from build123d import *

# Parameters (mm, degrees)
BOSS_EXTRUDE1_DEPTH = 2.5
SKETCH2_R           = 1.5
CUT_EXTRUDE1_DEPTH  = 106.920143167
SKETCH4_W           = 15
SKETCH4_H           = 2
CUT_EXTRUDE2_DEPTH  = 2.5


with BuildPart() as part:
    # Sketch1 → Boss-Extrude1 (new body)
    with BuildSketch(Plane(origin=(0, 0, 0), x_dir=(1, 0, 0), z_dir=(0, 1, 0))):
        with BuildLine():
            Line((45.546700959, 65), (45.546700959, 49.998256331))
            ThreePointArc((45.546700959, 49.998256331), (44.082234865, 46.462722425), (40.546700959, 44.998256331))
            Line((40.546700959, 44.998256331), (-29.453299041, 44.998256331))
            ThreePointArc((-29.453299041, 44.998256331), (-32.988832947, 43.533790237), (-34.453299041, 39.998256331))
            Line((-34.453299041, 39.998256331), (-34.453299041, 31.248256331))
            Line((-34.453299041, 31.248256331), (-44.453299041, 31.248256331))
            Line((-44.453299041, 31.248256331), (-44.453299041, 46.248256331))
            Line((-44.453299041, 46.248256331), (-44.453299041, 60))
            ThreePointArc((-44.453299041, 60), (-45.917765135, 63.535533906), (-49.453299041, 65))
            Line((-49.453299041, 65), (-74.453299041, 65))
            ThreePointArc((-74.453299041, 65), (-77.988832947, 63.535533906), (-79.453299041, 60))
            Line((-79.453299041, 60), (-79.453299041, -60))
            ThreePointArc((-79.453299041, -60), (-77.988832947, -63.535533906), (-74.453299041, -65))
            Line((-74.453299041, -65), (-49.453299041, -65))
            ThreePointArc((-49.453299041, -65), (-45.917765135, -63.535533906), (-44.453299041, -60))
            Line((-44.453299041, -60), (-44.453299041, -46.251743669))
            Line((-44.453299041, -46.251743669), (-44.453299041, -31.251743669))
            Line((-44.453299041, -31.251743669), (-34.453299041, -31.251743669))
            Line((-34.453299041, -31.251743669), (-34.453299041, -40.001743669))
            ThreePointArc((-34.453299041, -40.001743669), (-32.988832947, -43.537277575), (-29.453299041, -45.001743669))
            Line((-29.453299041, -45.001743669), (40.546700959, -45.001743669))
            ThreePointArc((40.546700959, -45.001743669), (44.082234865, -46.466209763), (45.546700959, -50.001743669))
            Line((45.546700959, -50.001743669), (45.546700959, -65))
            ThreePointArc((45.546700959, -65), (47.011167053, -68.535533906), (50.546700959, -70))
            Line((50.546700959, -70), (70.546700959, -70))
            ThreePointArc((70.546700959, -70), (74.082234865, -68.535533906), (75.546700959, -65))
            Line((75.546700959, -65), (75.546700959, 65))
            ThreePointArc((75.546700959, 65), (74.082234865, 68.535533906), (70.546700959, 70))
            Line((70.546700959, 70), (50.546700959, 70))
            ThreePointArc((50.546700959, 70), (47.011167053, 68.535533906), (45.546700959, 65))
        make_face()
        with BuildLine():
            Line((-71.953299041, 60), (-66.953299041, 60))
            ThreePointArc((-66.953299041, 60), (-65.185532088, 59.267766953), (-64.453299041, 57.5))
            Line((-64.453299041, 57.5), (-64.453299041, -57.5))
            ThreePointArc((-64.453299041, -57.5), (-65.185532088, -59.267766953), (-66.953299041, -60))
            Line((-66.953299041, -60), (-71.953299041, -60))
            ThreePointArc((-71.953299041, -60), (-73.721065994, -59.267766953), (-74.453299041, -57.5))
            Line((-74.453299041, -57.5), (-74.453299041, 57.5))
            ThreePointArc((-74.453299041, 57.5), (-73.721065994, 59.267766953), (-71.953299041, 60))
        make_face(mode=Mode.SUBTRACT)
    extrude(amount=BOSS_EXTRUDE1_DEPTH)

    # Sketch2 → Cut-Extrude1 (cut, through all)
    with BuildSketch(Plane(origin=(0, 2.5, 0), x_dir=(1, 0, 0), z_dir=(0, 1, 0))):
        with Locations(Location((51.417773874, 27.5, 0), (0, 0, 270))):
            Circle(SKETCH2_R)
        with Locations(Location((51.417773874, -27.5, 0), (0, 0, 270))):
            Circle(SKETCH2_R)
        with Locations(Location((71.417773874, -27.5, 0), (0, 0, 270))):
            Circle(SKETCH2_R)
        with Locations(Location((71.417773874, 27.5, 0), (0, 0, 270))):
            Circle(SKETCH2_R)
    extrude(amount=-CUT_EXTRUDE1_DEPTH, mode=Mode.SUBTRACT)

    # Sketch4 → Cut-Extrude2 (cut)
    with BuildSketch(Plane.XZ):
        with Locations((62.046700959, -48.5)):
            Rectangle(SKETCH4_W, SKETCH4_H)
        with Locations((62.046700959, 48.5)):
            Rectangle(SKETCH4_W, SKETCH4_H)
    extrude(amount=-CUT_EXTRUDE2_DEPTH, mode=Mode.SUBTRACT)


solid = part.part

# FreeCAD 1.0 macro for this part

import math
import FreeCAD as App
import Part
import Sketcher

doc = App.newDocument("Part")
body = doc.addObject("PartDesign::Body", "Body")

# Sketch on XZ plane
sketch1 = body.newObject("Sketcher::SketchObject", "Sketch")
sketch1.AttachmentSupport = (doc.getObject("XZ_Plane"), [""])
sketch1.MapMode = "FlatFace"
sketch1.addGeometry(Part.LineSegment(App.Vector(45.5, -65, 0), App.Vector(45.5, -50, 0)), False)
sketch1.addGeometry(Part.ArcOfCircle(Part.Circle(App.Vector(40.5, -50, 0), App.Vector(0, 0, 1), 5), math.radians(0), math.radians(90)), False)
sketch1.addGeometry(Part.LineSegment(App.Vector(40.5, -45, 0), App.Vector(-29.5, -45, 0)), False)
sketch1.addGeometry(Part.ArcOfCircle(Part.Circle(App.Vector(-29.5, -40, 0), App.Vector(0, 0, 1), 5), math.radians(180), math.radians(270)), False)
sketch1.addGeometry(Part.LineSegment(App.Vector(-34.5, -40, 0), App.Vector(-34.5, -31.2, 0)), False)
sketch1.addGeometry(Part.LineSegment(App.Vector(-34.5, -31.2, 0), App.Vector(-44.5, -31.2, 0)), False)
sketch1.addGeometry(Part.LineSegment(App.Vector(-44.5, -31.2, 0), App.Vector(-44.5, -60, 0)), False)
sketch1.addGeometry(Part.ArcOfCircle(Part.Circle(App.Vector(-49.5, -60, 0), App.Vector(0, 0, 1), 5), math.radians(-90), math.radians(0)), False)
sketch1.addGeometry(Part.LineSegment(App.Vector(-49.5, -65, 0), App.Vector(-74.5, -65, 0)), False)
sketch1.addGeometry(Part.ArcOfCircle(Part.Circle(App.Vector(-74.5, -60, 0), App.Vector(0, 0, 1), 5), math.radians(180), math.radians(270)), False)
sketch1.addGeometry(Part.LineSegment(App.Vector(-79.5, -60, 0), App.Vector(-79.5, 60, 0)), False)
sketch1.addGeometry(Part.ArcOfCircle(Part.Circle(App.Vector(-74.5, 60, 0), App.Vector(0, 0, 1), 5), math.radians(90), math.radians(180)), False)
sketch1.addGeometry(Part.LineSegment(App.Vector(-74.5, 65, 0), App.Vector(-49.5, 65, 0)), False)
sketch1.addGeometry(Part.ArcOfCircle(Part.Circle(App.Vector(-49.5, 60, 0), App.Vector(0, 0, 1), 5), math.radians(0), math.radians(90)), False)
sketch1.addGeometry(Part.LineSegment(App.Vector(-44.5, 60, 0), App.Vector(-44.5, 31.3, 0)), False)
sketch1.addGeometry(Part.LineSegment(App.Vector(-44.5, 31.3, 0), App.Vector(-34.5, 31.3, 0)), False)
sketch1.addGeometry(Part.LineSegment(App.Vector(-34.5, 31.3, 0), App.Vector(-34.5, 40, 0)), False)
sketch1.addGeometry(Part.ArcOfCircle(Part.Circle(App.Vector(-29.5, 40, 0), App.Vector(0, 0, 1), 5), math.radians(90), math.radians(180)), False)
sketch1.addGeometry(Part.LineSegment(App.Vector(-29.5, 45, 0), App.Vector(40.5, 45, 0)), False)
sketch1.addGeometry(Part.ArcOfCircle(Part.Circle(App.Vector(40.5, 50, 0), App.Vector(0, 0, 1), 5), math.radians(-90), math.radians(0)), False)
sketch1.addGeometry(Part.LineSegment(App.Vector(45.5, 50, 0), App.Vector(45.5, 65, 0)), False)
sketch1.addGeometry(Part.ArcOfCircle(Part.Circle(App.Vector(50.5, 65, 0), App.Vector(0, 0, 1), 5), math.radians(90), math.radians(180)), False)
sketch1.addGeometry(Part.LineSegment(App.Vector(50.5, 70, 0), App.Vector(70.5, 70, 0)), False)
sketch1.addGeometry(Part.ArcOfCircle(Part.Circle(App.Vector(70.5, 65, 0), App.Vector(0, 0, 1), 5), math.radians(0), math.radians(90)), False)
sketch1.addGeometry(Part.LineSegment(App.Vector(75.5, 65, 0), App.Vector(75.5, -65, 0)), False)
sketch1.addGeometry(Part.ArcOfCircle(Part.Circle(App.Vector(70.5, -65, 0), App.Vector(0, 0, 1), 5), math.radians(-90), math.radians(0)), False)
sketch1.addGeometry(Part.LineSegment(App.Vector(70.5, -70, 0), App.Vector(50.5, -70, 0)), False)
sketch1.addGeometry(Part.ArcOfCircle(Part.Circle(App.Vector(50.5, -65, 0), App.Vector(0, 0, 1), 5), math.radians(180), math.radians(270)), False)
sketch1.addGeometry(Part.ArcOfCircle(Part.Circle(App.Vector(-72, -57.5, 0), App.Vector(0, 0, 1), 2.5), math.radians(180), math.radians(270)), False)
sketch1.addGeometry(Part.LineSegment(App.Vector(-72, -60, 0), App.Vector(-67, -60, 0)), False)
sketch1.addGeometry(Part.ArcOfCircle(Part.Circle(App.Vector(-67, -57.5, 0), App.Vector(0, 0, 1), 2.5), math.radians(-90), math.radians(0)), False)
sketch1.addGeometry(Part.LineSegment(App.Vector(-64.5, -57.5, 0), App.Vector(-64.5, 57.5, 0)), False)
sketch1.addGeometry(Part.ArcOfCircle(Part.Circle(App.Vector(-67, 57.5, 0), App.Vector(0, 0, 1), 2.5), math.radians(0), math.radians(90)), False)
sketch1.addGeometry(Part.LineSegment(App.Vector(-67, 60, 0), App.Vector(-72, 60, 0)), False)
sketch1.addGeometry(Part.ArcOfCircle(Part.Circle(App.Vector(-72, 57.5, 0), App.Vector(0, 0, 1), 2.5), math.radians(90), math.radians(180)), False)
sketch1.addGeometry(Part.LineSegment(App.Vector(-74.5, 57.5, 0), App.Vector(-74.5, -57.5, 0)), False)
sketch1.addConstraint(Sketcher.Constraint("Tangent", 0, 2, 1, 1))
sketch1.addConstraint(Sketcher.Constraint("Tangent", 1, 2, 2, 1))
sketch1.addConstraint(Sketcher.Constraint("Tangent", 2, 2, 3, 2))
sketch1.addConstraint(Sketcher.Constraint("Tangent", 3, 1, 4, 1))
sketch1.addConstraint(Sketcher.Constraint("Coincident", 4, 2, 5, 1))
sketch1.addConstraint(Sketcher.Constraint("Coincident", 5, 2, 6, 1))
sketch1.addConstraint(Sketcher.Constraint("Tangent", 6, 2, 7, 2))
sketch1.addConstraint(Sketcher.Constraint("Tangent", 7, 1, 8, 1))
sketch1.addConstraint(Sketcher.Constraint("Tangent", 8, 2, 9, 2))
sketch1.addConstraint(Sketcher.Constraint("Tangent", 9, 1, 10, 1))
sketch1.addConstraint(Sketcher.Constraint("Tangent", 10, 2, 11, 2))
sketch1.addConstraint(Sketcher.Constraint("Tangent", 11, 1, 12, 1))
sketch1.addConstraint(Sketcher.Constraint("Tangent", 12, 2, 13, 2))
sketch1.addConstraint(Sketcher.Constraint("Tangent", 13, 1, 14, 1))
sketch1.addConstraint(Sketcher.Constraint("Coincident", 14, 2, 15, 1))
sketch1.addConstraint(Sketcher.Constraint("Coincident", 15, 2, 16, 1))
sketch1.addConstraint(Sketcher.Constraint("Tangent", 16, 2, 17, 2))
sketch1.addConstraint(Sketcher.Constraint("Tangent", 17, 1, 18, 1))
sketch1.addConstraint(Sketcher.Constraint("Tangent", 18, 2, 19, 1))
sketch1.addConstraint(Sketcher.Constraint("Tangent", 19, 2, 20, 1))
sketch1.addConstraint(Sketcher.Constraint("Tangent", 20, 2, 21, 2))
sketch1.addConstraint(Sketcher.Constraint("Tangent", 21, 1, 22, 1))
sketch1.addConstraint(Sketcher.Constraint("Tangent", 22, 2, 23, 2))
sketch1.addConstraint(Sketcher.Constraint("Tangent", 23, 1, 24, 1))
sketch1.addConstraint(Sketcher.Constraint("Tangent", 24, 2, 25, 2))
sketch1.addConstraint(Sketcher.Constraint("Tangent", 25, 1, 26, 1))
sketch1.addConstraint(Sketcher.Constraint("Tangent", 26, 2, 27, 2))
sketch1.addConstraint(Sketcher.Constraint("Tangent", 27, 1, 0, 1))
sketch1.addConstraint(Sketcher.Constraint("Tangent", 28, 2, 29, 1))
sketch1.addConstraint(Sketcher.Constraint("Tangent", 29, 2, 30, 1))
sketch1.addConstraint(Sketcher.Constraint("Tangent", 30, 2, 31, 1))
sketch1.addConstraint(Sketcher.Constraint("Tangent", 31, 2, 32, 1))
sketch1.addConstraint(Sketcher.Constraint("Tangent", 32, 2, 33, 1))
sketch1.addConstraint(Sketcher.Constraint("Tangent", 33, 2, 34, 1))
sketch1.addConstraint(Sketcher.Constraint("Tangent", 34, 2, 35, 1))
sketch1.addConstraint(Sketcher.Constraint("Tangent", 35, 2, 28, 1))
sketch1.addConstraint(Sketcher.Constraint("Vertical", 0))
sketch1.addConstraint(Sketcher.Constraint("Horizontal", 2))
sketch1.addConstraint(Sketcher.Constraint("Vertical", 4))
sketch1.addConstraint(Sketcher.Constraint("Horizontal", 5))
sketch1.addConstraint(Sketcher.Constraint("Vertical", 6))
sketch1.addConstraint(Sketcher.Constraint("Horizontal", 8))
sketch1.addConstraint(Sketcher.Constraint("Vertical", 10))
sketch1.addConstraint(Sketcher.Constraint("Horizontal", 12))
sketch1.addConstraint(Sketcher.Constraint("Vertical", 14))
sketch1.addConstraint(Sketcher.Constraint("Horizontal", 15))
sketch1.addConstraint(Sketcher.Constraint("Vertical", 16))
sketch1.addConstraint(Sketcher.Constraint("Horizontal", 18))
sketch1.addConstraint(Sketcher.Constraint("Vertical", 20))
sketch1.addConstraint(Sketcher.Constraint("Horizontal", 22))
sketch1.addConstraint(Sketcher.Constraint("Vertical", 24))
sketch1.addConstraint(Sketcher.Constraint("Horizontal", 26))
sketch1.addConstraint(Sketcher.Constraint("Horizontal", 29))
sketch1.addConstraint(Sketcher.Constraint("Vertical", 31))
sketch1.addConstraint(Sketcher.Constraint("Horizontal", 33))
sketch1.addConstraint(Sketcher.Constraint("Vertical", 35))
sketch1.addConstraint(Sketcher.Constraint("Equal", 1, 3))
sketch1.addConstraint(Sketcher.Constraint("Equal", 3, 7))
sketch1.addConstraint(Sketcher.Constraint("Equal", 7, 9))
sketch1.addConstraint(Sketcher.Constraint("Equal", 9, 11))
sketch1.addConstraint(Sketcher.Constraint("Equal", 11, 13))
sketch1.addConstraint(Sketcher.Constraint("Equal", 13, 17))
sketch1.addConstraint(Sketcher.Constraint("Equal", 17, 19))
sketch1.addConstraint(Sketcher.Constraint("Equal", 19, 21))
sketch1.addConstraint(Sketcher.Constraint("Equal", 21, 23))
sketch1.addConstraint(Sketcher.Constraint("Equal", 23, 25))
sketch1.addConstraint(Sketcher.Constraint("Equal", 25, 27))
sketch1.addConstraint(Sketcher.Constraint("Equal", 28, 30))
sketch1.addConstraint(Sketcher.Constraint("Equal", 30, 32))
sketch1.addConstraint(Sketcher.Constraint("Equal", 32, 34))
sketch1.addConstraint(Sketcher.Constraint("Symmetric", 7, 3, 13, 3, -1))
sketch1.addConstraint(Sketcher.Constraint("Symmetric", 21, 3, 27, 3, -1))
sketch1.addConstraint(Sketcher.Constraint("Horizontal", 27, 3, 7, 1))
sketch1.addConstraint(Sketcher.Constraint("Horizontal", 9, 1, 28, 2))
sketch1.addConstraint(Sketcher.Constraint("Horizontal", 13, 1, 32, 2))
sketch1.addConstraint(Sketcher.Constraint("Vertical", 3, 3, 17, 3))
sketch1.addConstraint(Sketcher.Constraint("Vertical", 11, 1, 34, 2))
sketch1.addConstraint(Sketcher.Constraint("Equal", 4, 16))
sketch1.addConstraint(Sketcher.Constraint("Radius", 1, 5.0))
sketch1.addConstraint(Sketcher.Constraint("Radius", 28, 2.5))
sketch1.addConstraint(Sketcher.Constraint("DistanceX", 2, 2, 2, 1, 70.0))
sketch1.addConstraint(Sketcher.Constraint("DistanceX", 5, 2, 5, 1, 10.0))
sketch1.addConstraint(Sketcher.Constraint("DistanceX", 8, 2, 8, 1, 25.0))
sketch1.addConstraint(Sketcher.Constraint("DistanceX", 22, 1, 22, 2, 20.0))
sketch1.addConstraint(Sketcher.Constraint("DistanceX", 29, 1, 29, 2, 5.0))
sketch1.addConstraint(Sketcher.Constraint("DistanceY", 10, 1, 10, 2, 120.0))
sketch1.addConstraint(Sketcher.Constraint("DistanceY", 3, 3, 17, 3, 80.0))
sketch1.addConstraint(Sketcher.Constraint("DistanceY", 4, 1, 4, 2, 8.75))
sketch1.addConstraint(Sketcher.Constraint("DistanceX", -1, 1, 1, 3, 40.546701))
sketch1.addConstraint(Sketcher.Constraint("DistanceY", 0, 1, 0, 2, 15.001744))
pad1 = body.newObject("PartDesign::Pad", "Pad")
pad1.Profile = sketch1
pad1.Length = 2.5
pad1.Reversed = True

# Sketch on XZ plane
sketch2 = body.newObject("Sketcher::SketchObject", "Sketch001")
sketch2.AttachmentSupport = (doc.getObject("XZ_Plane"), [""])
sketch2.MapMode = "FlatFace"
sketch2.AttachmentOffset = App.Placement(App.Vector(0, 0, -2.5), App.Rotation())
sketch2.addGeometry(Part.Circle(App.Vector(51.4, -27.5, 0), App.Vector(0, 0, 1), 1.5), False)
sketch2.addGeometry(Part.Circle(App.Vector(51.4, 27.5, 0), App.Vector(0, 0, 1), 1.5), False)
sketch2.addGeometry(Part.Circle(App.Vector(71.4, 27.5, 0), App.Vector(0, 0, 1), 1.5), False)
sketch2.addGeometry(Part.Circle(App.Vector(71.4, -27.5, 0), App.Vector(0, 0, 1), 1.5), False)
sketch2.addConstraint(Sketcher.Constraint("Equal", 0, 1))
sketch2.addConstraint(Sketcher.Constraint("Equal", 1, 2))
sketch2.addConstraint(Sketcher.Constraint("Equal", 2, 3))
sketch2.addConstraint(Sketcher.Constraint("Symmetric", 0, 3, 1, 3, -1))
sketch2.addConstraint(Sketcher.Constraint("Symmetric", 2, 3, 3, 3, -1))
sketch2.addConstraint(Sketcher.Constraint("Horizontal", 1, 3, 2, 3))
sketch2.addConstraint(Sketcher.Constraint("Diameter", 0, 3.0))
sketch2.addConstraint(Sketcher.Constraint("DistanceY", 0, 3, 1, 3, 55.0))
sketch2.addConstraint(Sketcher.Constraint("DistanceX", 1, 3, 2, 3, 20.0))
sketch2.addConstraint(Sketcher.Constraint("DistanceX", -1, 1, 0, 3, 51.417774))
pocket1 = body.newObject("PartDesign::Pocket", "Pocket")
pocket1.Profile = sketch2
pocket1.Type = "ThroughAll"
pocket1.Reversed = True

# Sketch on XZ plane
sketch3 = body.newObject("Sketcher::SketchObject", "Sketch002")
sketch3.AttachmentSupport = (doc.getObject("XZ_Plane"), [""])
sketch3.MapMode = "FlatFace"
sketch3.addGeometry(Part.LineSegment(App.Vector(54.5, -47.5, 0), App.Vector(54.5, -49.5, 0)), False)
sketch3.addGeometry(Part.LineSegment(App.Vector(54.5, -49.5, 0), App.Vector(69.5, -49.5, 0)), False)
sketch3.addGeometry(Part.LineSegment(App.Vector(69.5, -49.5, 0), App.Vector(69.5, -47.5, 0)), False)
sketch3.addGeometry(Part.LineSegment(App.Vector(69.5, -47.5, 0), App.Vector(54.5, -47.5, 0)), False)
sketch3.addGeometry(Part.LineSegment(App.Vector(54.5, 49.5, 0), App.Vector(54.5, 47.5, 0)), False)
sketch3.addGeometry(Part.LineSegment(App.Vector(54.5, 47.5, 0), App.Vector(69.5, 47.5, 0)), False)
sketch3.addGeometry(Part.LineSegment(App.Vector(69.5, 47.5, 0), App.Vector(69.5, 49.5, 0)), False)
sketch3.addGeometry(Part.LineSegment(App.Vector(69.5, 49.5, 0), App.Vector(54.5, 49.5, 0)), False)
sketch3.addConstraint(Sketcher.Constraint("Coincident", 0, 2, 1, 1))
sketch3.addConstraint(Sketcher.Constraint("Coincident", 1, 2, 2, 1))
sketch3.addConstraint(Sketcher.Constraint("Coincident", 2, 2, 3, 1))
sketch3.addConstraint(Sketcher.Constraint("Coincident", 3, 2, 0, 1))
sketch3.addConstraint(Sketcher.Constraint("Coincident", 4, 2, 5, 1))
sketch3.addConstraint(Sketcher.Constraint("Coincident", 5, 2, 6, 1))
sketch3.addConstraint(Sketcher.Constraint("Coincident", 6, 2, 7, 1))
sketch3.addConstraint(Sketcher.Constraint("Coincident", 7, 2, 4, 1))
sketch3.addConstraint(Sketcher.Constraint("Vertical", 0))
sketch3.addConstraint(Sketcher.Constraint("Horizontal", 1))
sketch3.addConstraint(Sketcher.Constraint("Vertical", 2))
sketch3.addConstraint(Sketcher.Constraint("Horizontal", 3))
sketch3.addConstraint(Sketcher.Constraint("Vertical", 4))
sketch3.addConstraint(Sketcher.Constraint("Horizontal", 5))
sketch3.addConstraint(Sketcher.Constraint("Vertical", 6))
sketch3.addConstraint(Sketcher.Constraint("Horizontal", 7))
sketch3.addConstraint(Sketcher.Constraint("Symmetric", 3, 2, 4, 2, -1))
sketch3.addConstraint(Sketcher.Constraint("Symmetric", 1, 2, 6, 2, -1))
sketch3.addConstraint(Sketcher.Constraint("DistanceX", 1, 1, 1, 2, 15.0))
sketch3.addConstraint(Sketcher.Constraint("DistanceY", 0, 2, 0, 1, 2.0))
sketch3.addConstraint(Sketcher.Constraint("DistanceY", 3, 2, 4, 2, 95.0))
sketch3.addConstraint(Sketcher.Constraint("DistanceX", -1, 1, 0, 2, 54.546701))
pocket2 = body.newObject("PartDesign::Pocket", "Pocket001")
pocket2.Profile = sketch3
pocket2.Length = 2.5

doc.recompute()
